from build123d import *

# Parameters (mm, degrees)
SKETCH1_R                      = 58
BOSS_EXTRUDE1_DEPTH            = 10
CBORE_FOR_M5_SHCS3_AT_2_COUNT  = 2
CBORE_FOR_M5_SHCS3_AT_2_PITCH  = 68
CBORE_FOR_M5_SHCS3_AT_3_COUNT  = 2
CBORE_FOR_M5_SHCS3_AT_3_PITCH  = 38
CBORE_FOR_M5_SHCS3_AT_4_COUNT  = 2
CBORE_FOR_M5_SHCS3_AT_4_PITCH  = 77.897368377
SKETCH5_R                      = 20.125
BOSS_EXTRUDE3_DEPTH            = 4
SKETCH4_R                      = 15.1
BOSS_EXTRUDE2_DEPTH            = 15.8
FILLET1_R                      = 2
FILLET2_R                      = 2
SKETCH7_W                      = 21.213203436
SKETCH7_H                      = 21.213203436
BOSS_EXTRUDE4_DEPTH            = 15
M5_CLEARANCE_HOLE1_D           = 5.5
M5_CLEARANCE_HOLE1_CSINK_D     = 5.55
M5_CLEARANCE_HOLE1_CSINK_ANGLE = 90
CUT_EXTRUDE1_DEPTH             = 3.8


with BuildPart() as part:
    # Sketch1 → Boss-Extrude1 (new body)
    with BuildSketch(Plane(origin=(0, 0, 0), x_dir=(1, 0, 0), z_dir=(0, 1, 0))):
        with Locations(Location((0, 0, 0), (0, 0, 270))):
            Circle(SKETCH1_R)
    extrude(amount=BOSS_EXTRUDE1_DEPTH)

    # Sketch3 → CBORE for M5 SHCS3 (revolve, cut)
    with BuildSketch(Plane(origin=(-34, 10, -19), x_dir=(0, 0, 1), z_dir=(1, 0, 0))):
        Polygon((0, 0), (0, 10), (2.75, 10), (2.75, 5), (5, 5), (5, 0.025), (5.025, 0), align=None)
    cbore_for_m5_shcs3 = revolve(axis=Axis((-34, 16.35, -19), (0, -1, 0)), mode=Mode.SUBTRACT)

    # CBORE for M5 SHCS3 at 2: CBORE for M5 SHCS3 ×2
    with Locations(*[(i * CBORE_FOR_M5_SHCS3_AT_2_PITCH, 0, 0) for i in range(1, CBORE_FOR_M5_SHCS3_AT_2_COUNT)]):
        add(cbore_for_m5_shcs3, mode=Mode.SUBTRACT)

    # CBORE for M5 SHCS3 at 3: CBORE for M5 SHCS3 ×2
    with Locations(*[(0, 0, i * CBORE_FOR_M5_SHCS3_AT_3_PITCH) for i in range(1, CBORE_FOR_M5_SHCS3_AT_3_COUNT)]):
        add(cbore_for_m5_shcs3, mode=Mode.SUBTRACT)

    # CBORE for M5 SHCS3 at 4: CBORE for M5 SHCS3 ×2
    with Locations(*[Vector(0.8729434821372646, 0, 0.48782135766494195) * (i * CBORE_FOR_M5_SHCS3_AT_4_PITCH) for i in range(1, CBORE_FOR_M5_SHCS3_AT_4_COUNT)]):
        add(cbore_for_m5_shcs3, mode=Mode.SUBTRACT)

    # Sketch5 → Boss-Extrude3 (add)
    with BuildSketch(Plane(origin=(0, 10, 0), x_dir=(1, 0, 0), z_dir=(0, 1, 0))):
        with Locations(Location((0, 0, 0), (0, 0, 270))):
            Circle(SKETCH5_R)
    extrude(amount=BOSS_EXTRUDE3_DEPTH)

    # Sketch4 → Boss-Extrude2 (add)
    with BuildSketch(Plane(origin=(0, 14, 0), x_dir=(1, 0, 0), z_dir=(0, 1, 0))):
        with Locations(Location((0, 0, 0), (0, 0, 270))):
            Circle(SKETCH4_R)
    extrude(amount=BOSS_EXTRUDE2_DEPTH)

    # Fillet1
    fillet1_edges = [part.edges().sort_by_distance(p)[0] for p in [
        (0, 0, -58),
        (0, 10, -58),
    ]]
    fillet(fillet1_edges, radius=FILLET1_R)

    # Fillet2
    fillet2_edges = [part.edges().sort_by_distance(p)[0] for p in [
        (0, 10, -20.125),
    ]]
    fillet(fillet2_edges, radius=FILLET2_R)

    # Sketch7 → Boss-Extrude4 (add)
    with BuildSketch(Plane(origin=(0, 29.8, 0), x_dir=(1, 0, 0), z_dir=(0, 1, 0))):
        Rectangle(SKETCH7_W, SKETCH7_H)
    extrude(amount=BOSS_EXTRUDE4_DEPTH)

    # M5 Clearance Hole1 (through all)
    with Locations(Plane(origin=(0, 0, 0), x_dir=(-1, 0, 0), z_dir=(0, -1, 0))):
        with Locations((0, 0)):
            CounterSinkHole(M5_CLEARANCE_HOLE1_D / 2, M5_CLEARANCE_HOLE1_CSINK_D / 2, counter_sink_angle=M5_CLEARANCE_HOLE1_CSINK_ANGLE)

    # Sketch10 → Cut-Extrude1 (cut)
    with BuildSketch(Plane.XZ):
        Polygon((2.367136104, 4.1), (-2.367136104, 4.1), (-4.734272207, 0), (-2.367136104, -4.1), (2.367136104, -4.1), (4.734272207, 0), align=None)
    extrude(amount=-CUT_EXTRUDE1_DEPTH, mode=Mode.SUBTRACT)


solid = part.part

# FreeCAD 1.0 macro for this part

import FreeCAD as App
import Part
import Sketcher

V = App.Vector
Q = App.Units.Quantity


def edges_at(feature, points):
    """Names of the edges that pass closest to the given points."""
    edges = feature.Shape.Edges
    near = lambda p: min(range(len(edges)), key=lambda i: edges[i].distToShape(Part.Vertex(*p))[0])
    return sorted({f"Edge{near(p) + 1}" for p in points})


def add_polygon(sketch, points):
    """Adds a closed chain of lines whose ends are joined by coincident constraints."""
    first, n = sketch.GeometryCount, len(points)
    for a, b in zip(points, points[1:] + points[:1]):
        sketch.addGeometry(Part.LineSegment(App.Vector(*a, 0), App.Vector(*b, 0)), False)
    for i in range(n):
        sketch.addConstraint(Sketcher.Constraint("Coincident", first + i, 2, first + (i + 1) % n, 1))

doc = App.newDocument("Part")
body = doc.addObject("PartDesign::Body", "Body")

sketch1 = body.newObject("Sketcher::SketchObject", "Sketch")
sketch1.AttachmentSupport = (doc.getObject("XZ_Plane"), [""])
sketch1.MapMode = "FlatFace"
sketch1.addGeometry(Part.Circle(V(0, 0, 0), V(0, 0, 1), 58), False)
sketch1.addConstraint([
    Sketcher.Constraint("Coincident", 0, 3, -1, 1),
    Sketcher.Constraint("Diameter", 0, Q("116 mm")),
])
pad1 = body.newObject("PartDesign::Pad", "Pad")
pad1.Profile = sketch1
pad1.Length = 10
pad1.Reversed = True

sketch2 = body.newObject("Sketcher::SketchObject", "Sketch001")
sketch2.AttachmentSupport = (doc.getObject("YZ_Plane"), [""])
sketch2.MapMode = "FlatFace"
sketch2.AttachmentOffset = App.Placement(V(0, 0, -34), App.Rotation())
add_polygon(sketch2, [(0, -19), (10, -19), (10, -13.975), (9.975, -14), (5, -14), (5, -16.25), (0, -16.25)])
sketch2.addGeometry(Part.LineSegment(V(10, -19, 0), V(0, -19, 0)), True)
sketch2.addConstraint([
    Sketcher.Constraint("Horizontal", 0),
    Sketcher.Constraint("Vertical", 1),
    Sketcher.Constraint("Horizontal", 3),
    Sketcher.Constraint("Vertical", 4),
    Sketcher.Constraint("Horizontal", 5),
    Sketcher.Constraint("Vertical", 6),
    Sketcher.Constraint("Horizontal", 7),
    Sketcher.Constraint("Coincident", 7, 1, 0, 2),
    Sketcher.Constraint("PointOnObject", 5, 2, -2),
    Sketcher.Constraint("PointOnObject", 7, 2, -2),
    Sketcher.Constraint("DistanceX", 0, 1, 0, 2, Q("10 mm")),
    Sketcher.Constraint("DistanceX", 5, 2, 5, 1, Q("5 mm")),
    Sketcher.Constraint("Angle", 2, Q("-135 deg")),
    Sketcher.Constraint("DistanceY", 0, 2, -1, 1, Q("19 mm")),
    Sketcher.Constraint("DistanceY", 2, 2, -1, 1, Q("14 mm")),
    Sketcher.Constraint("DistanceY", 4, 2, 4, 1, Q("2.25 mm")),
    Sketcher.Constraint("DistanceX", 3, 2, 3, 1, Q("4.975 mm")),
])
groove = body.newObject("PartDesign::Groove", "Groove")
groove.Profile = sketch2
groove.ReferenceAxis = (sketch2, ["Axis0"])
groove.Angle = 360
doc.recompute()

linearpattern = body.newObject("PartDesign::LinearPattern", "LinearPattern")
linearpattern.Originals = [groove]
linearpattern.Direction = (doc.getObject("X_Axis"), [""])
linearpattern.Mode = "offset"
linearpattern.Offset = 68
linearpattern.Occurrences = 2
body.Tip = linearpattern
doc.recompute()

linearpattern2 = body.newObject("PartDesign::LinearPattern", "LinearPattern001")
linearpattern2.Originals = [groove]
linearpattern2.Direction = (doc.getObject("Z_Axis"), [""])
linearpattern2.Mode = "offset"
linearpattern2.Offset = 38
linearpattern2.Occurrences = 2
body.Tip = linearpattern2
doc.recompute()

datumline = body.newObject("PartDesign::Line", "DatumLine")
datumline.Placement = App.Placement(V(0, 0, 0), App.Rotation(V(0, 0, 1), V(0.872943482, 0, 0.487821358)))
linearpattern3 = body.newObject("PartDesign::LinearPattern", "LinearPattern002")
linearpattern3.Originals = [groove]
linearpattern3.Direction = (datumline, [""])
linearpattern3.Mode = "offset"
linearpattern3.Offset = 77.897368
linearpattern3.Occurrences = 2
body.Tip = linearpattern3

sketch3 = body.newObject("Sketcher::SketchObject", "Sketch002")
sketch3.AttachmentSupport = (doc.getObject("XZ_Plane"), [""])
sketch3.MapMode = "FlatFace"
sketch3.AttachmentOffset = App.Placement(V(0, 0, -10), App.Rotation())
sketch3.addGeometry(Part.Circle(V(0, 0, 0), V(0, 0, 1), 20), False)
sketch3.addConstraint([
    Sketcher.Constraint("Coincident", 0, 3, -1, 1),
    Sketcher.Constraint("Diameter", 0, Q("40.25 mm")),
])
pad2 = body.newObject("PartDesign::Pad", "Pad001")
pad2.Profile = sketch3
pad2.Length = 4
pad2.Reversed = True

sketch4 = body.newObject("Sketcher::SketchObject", "Sketch003")
sketch4.AttachmentSupport = (doc.getObject("XZ_Plane"), [""])
sketch4.MapMode = "FlatFace"
sketch4.AttachmentOffset = App.Placement(V(0, 0, -14), App.Rotation())
sketch4.addGeometry(Part.Circle(V(0, 0, 0), V(0, 0, 1), 15), False)
sketch4.addConstraint([
    Sketcher.Constraint("Coincident", 0, 3, -1, 1),
    Sketcher.Constraint("Diameter", 0, Q("30.2 mm")),
])
pad3 = body.newObject("PartDesign::Pad", "Pad002")
pad3.Profile = sketch4
pad3.Length = 15.8
pad3.Reversed = True
doc.recompute()

fillet = body.newObject("PartDesign::Fillet", "Fillet")
fillet.Base = (pad3, edges_at(pad3, [(0, 0, -58), (0, 10, -58)]))
fillet.Radius = 2
doc.recompute()

fillet2 = body.newObject("PartDesign::Fillet", "Fillet001")
fillet2.Base = (fillet, edges_at(fillet, [(0, 10, -20.125)]))
fillet2.Radius = 2

sketch5 = body.newObject("Sketcher::SketchObject", "Sketch004")
sketch5.AttachmentSupport = (doc.getObject("XZ_Plane"), [""])
sketch5.MapMode = "FlatFace"
sketch5.AttachmentOffset = App.Placement(V(0, 0, -29.8), App.Rotation())
add_polygon(sketch5, [(-11, -11), (-11, 11), (11, 11), (11, -11)])
sketch5.addConstraint([
    Sketcher.Constraint("Vertical", 0),
    Sketcher.Constraint("Horizontal", 1),
    Sketcher.Constraint("Vertical", 2),
    Sketcher.Constraint("Horizontal", 3),
    Sketcher.Constraint("Symmetric", 0, 2, 2, 2, -1, 1),
    Sketcher.Constraint("Equal", 3, 0),
    Sketcher.Constraint("DistanceX", 0, 2, -1, 1, Q("10.606602 mm")),
])
pad4 = body.newObject("PartDesign::Pad", "Pad003")
pad4.Profile = sketch5
pad4.Length = 15
pad4.Reversed = True

sketch6 = body.newObject("Sketcher::SketchObject", "Sketch005")
sketch6.AttachmentSupport = (doc.getObject("XZ_Plane"), [""])
sketch6.MapMode = "FlatFace"
sketch6.addGeometry(Part.Circle(V(0, 0, 0), V(0, 0, 1), 2.8), False)
sketch6.addConstraint([
    Sketcher.Constraint("Coincident", 0, 3, -1, 1),
    Sketcher.Constraint("Diameter", 0, Q("5.5 mm")),
])
doc.recompute()
hole = body.newObject("PartDesign::Hole", "Hole")
hole.Profile = sketch6
hole.ThreadType = "None"
hole.Diameter = 5.5
hole.DepthType = "ThroughAll"
hole.HoleCutType = "Countersink"
hole.HoleCutDiameter = 5.55
hole.HoleCutCountersinkAngle = 90

sketch7 = body.newObject("Sketcher::SketchObject", "Sketch006")
sketch7.AttachmentSupport = (doc.getObject("XZ_Plane"), [""])
sketch7.MapMode = "FlatFace"
add_polygon(sketch7, [(2.4, 4.1), (-2.4, 4.1), (-4.7, 0), (-2.4, -4.1), (2.4, -4.1), (4.7, 0)])
sketch7.addConstraint([
    Sketcher.Constraint("Horizontal", 0),
    Sketcher.Constraint("Horizontal", 3),
    Sketcher.Constraint("Symmetric", 0, 2, 3, 2, -1, 1),
    Sketcher.Constraint("Symmetric", 1, 2, 4, 2, -1, 1),
    Sketcher.Constraint("PointOnObject", 1, 2, -1),
    Sketcher.Constraint("Parallel", 2, 5),
    Sketcher.Constraint("Vertical", 0, 2, 2, 2),
    Sketcher.Constraint("Angle", 1, Q("-120 deg")),
    Sketcher.Constraint("DistanceY", -1, 1, 0, 2, Q("4.1 mm")),
    Sketcher.Constraint("DistanceX", 0, 2, 0, 1, Q("4.734272 mm")),
])
pocket1 = body.newObject("PartDesign::Pocket", "Pocket")
pocket1.Profile = sketch7
pocket1.Length = 3.8

doc.recompute()
